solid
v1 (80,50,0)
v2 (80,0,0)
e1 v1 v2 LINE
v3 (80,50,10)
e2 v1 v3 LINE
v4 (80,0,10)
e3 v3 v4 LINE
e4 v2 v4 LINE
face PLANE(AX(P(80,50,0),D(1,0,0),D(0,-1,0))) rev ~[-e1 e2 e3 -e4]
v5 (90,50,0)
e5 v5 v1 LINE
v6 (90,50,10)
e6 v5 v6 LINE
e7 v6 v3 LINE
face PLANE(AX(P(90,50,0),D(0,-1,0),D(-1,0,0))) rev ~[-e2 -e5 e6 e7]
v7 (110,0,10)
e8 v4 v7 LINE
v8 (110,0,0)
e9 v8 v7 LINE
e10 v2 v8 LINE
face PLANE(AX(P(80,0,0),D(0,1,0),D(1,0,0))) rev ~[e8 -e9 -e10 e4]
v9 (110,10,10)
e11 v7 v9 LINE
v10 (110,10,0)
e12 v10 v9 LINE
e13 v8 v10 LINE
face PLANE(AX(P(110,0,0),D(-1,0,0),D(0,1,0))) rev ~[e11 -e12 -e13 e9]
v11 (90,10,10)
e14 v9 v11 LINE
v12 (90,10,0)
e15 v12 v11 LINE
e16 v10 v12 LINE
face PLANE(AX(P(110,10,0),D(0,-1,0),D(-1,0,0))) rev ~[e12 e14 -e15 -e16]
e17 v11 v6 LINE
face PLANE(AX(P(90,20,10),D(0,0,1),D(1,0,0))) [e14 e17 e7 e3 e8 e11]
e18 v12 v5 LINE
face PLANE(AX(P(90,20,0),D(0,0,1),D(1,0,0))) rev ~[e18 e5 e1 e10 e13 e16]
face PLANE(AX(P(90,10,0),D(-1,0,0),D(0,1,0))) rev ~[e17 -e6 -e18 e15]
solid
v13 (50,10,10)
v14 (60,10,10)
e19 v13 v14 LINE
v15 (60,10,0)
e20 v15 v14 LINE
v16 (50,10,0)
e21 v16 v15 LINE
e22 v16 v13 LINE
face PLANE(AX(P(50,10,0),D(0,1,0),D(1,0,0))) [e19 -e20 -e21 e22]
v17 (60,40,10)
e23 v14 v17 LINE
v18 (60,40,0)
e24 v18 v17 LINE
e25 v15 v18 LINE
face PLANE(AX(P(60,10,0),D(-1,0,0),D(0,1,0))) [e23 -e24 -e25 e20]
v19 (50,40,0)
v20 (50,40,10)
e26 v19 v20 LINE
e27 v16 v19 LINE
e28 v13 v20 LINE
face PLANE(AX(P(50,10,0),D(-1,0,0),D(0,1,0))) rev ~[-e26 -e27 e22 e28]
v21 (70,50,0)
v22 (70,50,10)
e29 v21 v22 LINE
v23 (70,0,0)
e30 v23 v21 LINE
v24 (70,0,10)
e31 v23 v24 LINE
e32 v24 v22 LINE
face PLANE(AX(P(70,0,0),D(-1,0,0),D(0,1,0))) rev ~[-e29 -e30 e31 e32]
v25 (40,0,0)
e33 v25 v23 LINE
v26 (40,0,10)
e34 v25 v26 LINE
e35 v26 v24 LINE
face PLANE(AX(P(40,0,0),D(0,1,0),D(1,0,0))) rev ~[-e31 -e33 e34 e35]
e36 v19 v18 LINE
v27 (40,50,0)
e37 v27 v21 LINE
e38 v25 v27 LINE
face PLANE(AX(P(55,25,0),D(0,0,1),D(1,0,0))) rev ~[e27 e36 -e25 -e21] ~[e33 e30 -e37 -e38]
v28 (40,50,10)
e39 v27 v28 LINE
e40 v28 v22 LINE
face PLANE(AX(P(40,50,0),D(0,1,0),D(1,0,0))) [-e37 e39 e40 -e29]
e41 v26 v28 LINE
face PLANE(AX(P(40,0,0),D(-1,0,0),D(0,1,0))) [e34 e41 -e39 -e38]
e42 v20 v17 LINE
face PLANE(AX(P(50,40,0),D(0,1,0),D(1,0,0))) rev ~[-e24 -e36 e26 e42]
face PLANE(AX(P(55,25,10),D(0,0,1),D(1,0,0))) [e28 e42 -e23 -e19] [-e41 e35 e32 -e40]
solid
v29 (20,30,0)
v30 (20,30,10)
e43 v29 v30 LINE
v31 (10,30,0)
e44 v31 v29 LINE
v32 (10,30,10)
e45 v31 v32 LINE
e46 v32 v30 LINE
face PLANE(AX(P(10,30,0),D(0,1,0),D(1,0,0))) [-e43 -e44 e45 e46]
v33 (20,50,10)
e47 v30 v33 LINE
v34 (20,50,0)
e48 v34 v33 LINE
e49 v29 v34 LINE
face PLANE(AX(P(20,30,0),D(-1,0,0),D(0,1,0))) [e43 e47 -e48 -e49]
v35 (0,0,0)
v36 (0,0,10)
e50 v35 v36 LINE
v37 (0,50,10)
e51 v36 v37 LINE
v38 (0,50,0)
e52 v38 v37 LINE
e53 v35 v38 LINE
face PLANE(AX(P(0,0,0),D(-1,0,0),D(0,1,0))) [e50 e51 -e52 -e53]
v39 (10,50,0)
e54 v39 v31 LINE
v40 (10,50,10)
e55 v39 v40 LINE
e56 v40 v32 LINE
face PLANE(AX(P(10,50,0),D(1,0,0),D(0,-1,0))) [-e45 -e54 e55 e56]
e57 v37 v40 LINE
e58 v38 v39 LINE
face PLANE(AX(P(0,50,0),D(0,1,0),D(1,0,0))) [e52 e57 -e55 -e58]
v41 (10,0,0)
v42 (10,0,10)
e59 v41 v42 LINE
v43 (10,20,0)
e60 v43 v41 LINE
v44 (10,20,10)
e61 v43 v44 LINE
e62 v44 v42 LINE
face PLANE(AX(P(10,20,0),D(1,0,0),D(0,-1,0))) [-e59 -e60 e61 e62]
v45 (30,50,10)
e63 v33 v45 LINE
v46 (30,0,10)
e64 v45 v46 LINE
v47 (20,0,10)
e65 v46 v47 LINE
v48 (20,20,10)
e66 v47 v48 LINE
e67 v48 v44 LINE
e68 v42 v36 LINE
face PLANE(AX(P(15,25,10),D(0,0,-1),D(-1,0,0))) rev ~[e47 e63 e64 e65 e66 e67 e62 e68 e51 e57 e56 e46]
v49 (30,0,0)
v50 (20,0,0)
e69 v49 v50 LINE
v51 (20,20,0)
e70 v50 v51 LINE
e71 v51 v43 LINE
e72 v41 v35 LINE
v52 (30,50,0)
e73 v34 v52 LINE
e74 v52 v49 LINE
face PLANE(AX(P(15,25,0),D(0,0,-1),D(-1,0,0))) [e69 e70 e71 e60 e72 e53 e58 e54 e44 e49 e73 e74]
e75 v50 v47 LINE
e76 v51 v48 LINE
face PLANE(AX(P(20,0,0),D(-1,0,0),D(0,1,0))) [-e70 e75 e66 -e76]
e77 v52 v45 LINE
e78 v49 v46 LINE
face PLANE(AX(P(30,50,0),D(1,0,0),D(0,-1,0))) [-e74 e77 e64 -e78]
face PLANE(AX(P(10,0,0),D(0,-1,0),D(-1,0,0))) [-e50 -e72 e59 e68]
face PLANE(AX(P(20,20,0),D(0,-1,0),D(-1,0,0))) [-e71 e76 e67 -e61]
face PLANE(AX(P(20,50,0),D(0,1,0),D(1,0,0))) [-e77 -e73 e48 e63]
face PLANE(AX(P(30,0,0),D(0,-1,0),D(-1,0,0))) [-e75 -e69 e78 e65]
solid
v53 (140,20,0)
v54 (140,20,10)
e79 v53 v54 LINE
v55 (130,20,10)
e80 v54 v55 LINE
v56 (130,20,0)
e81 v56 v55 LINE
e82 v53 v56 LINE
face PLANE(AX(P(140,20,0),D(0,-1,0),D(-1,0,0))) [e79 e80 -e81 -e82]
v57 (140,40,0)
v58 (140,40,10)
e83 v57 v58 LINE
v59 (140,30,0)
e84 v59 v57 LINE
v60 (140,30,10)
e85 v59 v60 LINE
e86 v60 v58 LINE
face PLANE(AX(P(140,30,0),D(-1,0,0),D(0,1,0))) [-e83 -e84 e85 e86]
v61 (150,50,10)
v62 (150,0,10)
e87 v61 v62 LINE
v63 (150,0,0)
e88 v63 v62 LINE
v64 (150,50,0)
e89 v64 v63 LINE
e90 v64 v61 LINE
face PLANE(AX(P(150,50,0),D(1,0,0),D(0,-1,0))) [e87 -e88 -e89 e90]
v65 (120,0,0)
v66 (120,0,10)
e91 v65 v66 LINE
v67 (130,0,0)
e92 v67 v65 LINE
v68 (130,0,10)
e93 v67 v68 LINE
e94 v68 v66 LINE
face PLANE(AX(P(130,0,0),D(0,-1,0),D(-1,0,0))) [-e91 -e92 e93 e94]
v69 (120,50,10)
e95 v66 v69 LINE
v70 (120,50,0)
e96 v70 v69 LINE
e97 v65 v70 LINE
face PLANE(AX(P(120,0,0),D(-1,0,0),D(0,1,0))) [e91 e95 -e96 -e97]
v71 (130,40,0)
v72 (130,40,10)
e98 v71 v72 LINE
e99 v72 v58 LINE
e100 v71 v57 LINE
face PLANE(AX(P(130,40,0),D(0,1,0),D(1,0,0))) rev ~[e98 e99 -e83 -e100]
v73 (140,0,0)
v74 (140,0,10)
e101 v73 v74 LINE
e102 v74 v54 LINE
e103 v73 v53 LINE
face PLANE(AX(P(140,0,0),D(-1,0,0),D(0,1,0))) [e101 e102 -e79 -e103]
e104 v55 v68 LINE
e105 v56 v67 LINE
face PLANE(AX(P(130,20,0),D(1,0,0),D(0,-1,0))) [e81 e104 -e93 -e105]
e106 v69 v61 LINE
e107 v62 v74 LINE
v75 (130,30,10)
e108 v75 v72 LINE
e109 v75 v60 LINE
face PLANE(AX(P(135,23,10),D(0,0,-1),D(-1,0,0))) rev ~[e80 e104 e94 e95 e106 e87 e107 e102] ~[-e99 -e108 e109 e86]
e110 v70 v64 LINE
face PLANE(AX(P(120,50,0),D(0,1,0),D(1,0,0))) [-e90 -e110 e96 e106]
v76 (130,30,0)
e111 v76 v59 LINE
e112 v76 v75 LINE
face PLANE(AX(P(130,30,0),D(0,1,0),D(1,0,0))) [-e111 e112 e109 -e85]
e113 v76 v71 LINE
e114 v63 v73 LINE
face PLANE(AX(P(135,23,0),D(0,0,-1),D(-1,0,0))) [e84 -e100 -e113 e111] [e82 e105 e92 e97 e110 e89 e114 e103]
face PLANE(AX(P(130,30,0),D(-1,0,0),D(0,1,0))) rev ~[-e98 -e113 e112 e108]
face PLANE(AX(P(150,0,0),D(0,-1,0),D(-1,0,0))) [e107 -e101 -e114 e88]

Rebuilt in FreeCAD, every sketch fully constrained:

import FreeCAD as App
import Part
import Sketcher
from FreeCAD import Vector


def add_polygon(sketch, points):
    """Adds a closed chain of lines whose ends are joined by coincident constraints."""
    first, n = sketch.GeometryCount, len(points)
    for a, b in zip(points, points[1:] + points[:1]):
        sketch.addGeometry(Part.LineSegment(App.Vector(*a, 0), App.Vector(*b, 0)), False)
    for i in range(n):
        sketch.addConstraint(Sketcher.Constraint("Coincident", first + i, 2, first + (i + 1) % n, 1))

doc = App.newDocument("Part")
params = doc.addObject("Spreadsheet::Sheet", "Params")
for row, (alias, value) in enumerate([
    ("sketch1_width", "10 mm"),
    ("sketch1_height", "50 mm"),
    ("sketch1_height2", "20 mm"),
    ("pad1_length", "10 mm"),
    ("sketch2_width", "30 mm"),
    ("sketch2_width2", "10 mm"),
    ("sketch2_height", "50 mm"),
    ("pad2_length", "10 mm"),
    ("sketch3_width", "30 mm"),
    ("sketch3_width2", "20 mm"),
    ("sketch3_height", "50 mm"),
    ("pad3_length", "10 mm"),
    ("sketch4_width", "10 mm"),
    ("sketch4_height", "50 mm"),
    ("sketch4_height2", "20 mm"),
    ("pad4_length", "10 mm"),
], start=1):
    params.set(f"A{row}", alias)
    params.set(f"B{row}", "=" + value)
    params.setAlias(f"B{row}", alias)

body = doc.addObject("PartDesign::Body", "Body")

sketch1 = body.newObject("Sketcher::SketchObject", "Sketch")
sketch1.AttachmentSupport = (doc.getObject("XY_Plane"), [""])
sketch1.MapMode = "FlatFace"
add_polygon(sketch1, [(0, 50), (0, 0), (10, 0), (10, 20), (20, 20), (20, 0), (30, 0), (30, 50), (20, 50), (20, 30), (10, 30), (10, 50)])
sketch1.addConstraint([
    Sketcher.Constraint("Vertical", 0),
    Sketcher.Constraint("Horizontal", 1),
    Sketcher.Constraint("Vertical", 2),
    Sketcher.Constraint("Horizontal", 3),
    Sketcher.Constraint("Vertical", 4),
    Sketcher.Constraint("Horizontal", 5),
    Sketcher.Constraint("Vertical", 6),
    Sketcher.Constraint("Horizontal", 7),
    Sketcher.Constraint("Vertical", 8),
    Sketcher.Constraint("Horizontal", 9),
    Sketcher.Constraint("Vertical", 10),
    Sketcher.Constraint("Horizontal", 11),
    Sketcher.Constraint("Coincident", 0, 2, -1, 1),
    Sketcher.Constraint("PointOnObject", 4, 2, -1),
    Sketcher.Constraint("Horizontal", 7, 2, 10, 2),
    Sketcher.Constraint("Vertical", 4, 2, 7, 2),
    Sketcher.Constraint("Vertical", 2, 2, 9, 2),
    Sketcher.Constraint("Equal", 1, 3),
    Sketcher.Constraint("Equal", 3, 5),
    Sketcher.Constraint("Equal", 4, 8),
    Sketcher.Constraint("DistanceX", 1, 1, 1, 2, 10.0),
    Sketcher.Constraint("DistanceY", 0, 2, 0, 1, 50.0),
    Sketcher.Constraint("DistanceY", 2, 1, 2, 2, 20.0),
])
sketch1.setExpression("Constraints[32]", "Params.sketch1_width")
sketch1.setExpression("Constraints[33]", "Params.sketch1_height")
sketch1.setExpression("Constraints[34]", "Params.sketch1_height2")
pad1 = body.newObject("PartDesign::Pad", "Pad")
pad1.Profile = sketch1
pad1.setExpression("Length", "Params.pad1_length")
body2 = doc.addObject("PartDesign::Body", "Body001")

sketch2 = body2.newObject("Sketcher::SketchObject", "Sketch001")
sketch2.AttachmentSupport = (doc.getObject("XY_Plane001"), [""])
sketch2.MapMode = "FlatFace"
add_polygon(sketch2, [(40, 50), (40, 0), (70, 0), (70, 50)])
add_polygon(sketch2, [(60, 10), (50, 10), (50, 40), (60, 40)])
sketch2.addConstraint([
    Sketcher.Constraint("Vertical", 0),
    Sketcher.Constraint("Horizontal", 1),
    Sketcher.Constraint("Vertical", 2),
    Sketcher.Constraint("Horizontal", 3),
    Sketcher.Constraint("Horizontal", 4),
    Sketcher.Constraint("Vertical", 5),
    Sketcher.Constraint("Horizontal", 6),
    Sketcher.Constraint("Vertical", 7),
    Sketcher.Constraint("PointOnObject", 0, 2, -1),
    Sketcher.Constraint("Equal", 3, 5),
    Sketcher.Constraint("DistanceX", 1, 1, 1, 2, 30.0),
    Sketcher.Constraint("DistanceX", 4, 2, 4, 1, 10.0),
    Sketcher.Constraint("DistanceY", 0, 2, 0, 1, 50.0),
    Sketcher.Constraint("DistanceX", -1, 1, 0, 2, 40.0),
    Sketcher.Constraint("DistanceX", -1, 1, 4, 2, 50.0),
    Sketcher.Constraint("DistanceY", -1, 1, 4, 2, 10.0),
])
sketch2.setExpression("Constraints[18]", "Params.sketch2_width")
sketch2.setExpression("Constraints[19]", "Params.sketch2_width2")
sketch2.setExpression("Constraints[20]", "Params.sketch2_height")
pad2 = body2.newObject("PartDesign::Pad", "Pad001")
pad2.Profile = sketch2
pad2.setExpression("Length", "Params.pad2_length")
body3 = doc.addObject("PartDesign::Body", "Body002")

sketch3 = body3.newObject("Sketcher::SketchObject", "Sketch002")
sketch3.AttachmentSupport = (doc.getObject("XY_Plane002"), [""])
sketch3.MapMode = "FlatFace"
add_polygon(sketch3, [(80, 50), (80, 0), (110, 0), (110, 10), (90, 10), (90, 50)])
sketch3.addConstraint([
    Sketcher.Constraint("Vertical", 0),
    Sketcher.Constraint("Horizontal", 1),
    Sketcher.Constraint("Vertical", 2),
    Sketcher.Constraint("Horizontal", 3),
    Sketcher.Constraint("Vertical", 4),
    Sketcher.Constraint("Horizontal", 5),
    Sketcher.Constraint("PointOnObject", 0, 2, -1),
    Sketcher.Constraint("Equal", 5, 2),
    Sketcher.Constraint("DistanceX", 1, 1, 1, 2, 30.0),
    Sketcher.Constraint("DistanceX", 3, 2, 3, 1, 20.0),
    Sketcher.Constraint("DistanceY", 0, 2, 0, 1, 50.0),
    Sketcher.Constraint("DistanceX", -1, 1, 0, 2, 80.0),
])
sketch3.setExpression("Constraints[14]", "Params.sketch3_width")
sketch3.setExpression("Constraints[15]", "Params.sketch3_width2")
sketch3.setExpression("Constraints[16]", "Params.sketch3_height")
pad3 = body3.newObject("PartDesign::Pad", "Pad002")
pad3.Profile = sketch3
pad3.setExpression("Length", "Params.pad3_length")
body4 = doc.addObject("PartDesign::Body", "Body003")

sketch4 = body4.newObject("Sketcher::SketchObject", "Sketch003")
sketch4.AttachmentSupport = (doc.getObject("XY_Plane003"), [""])
sketch4.MapMode = "FlatFace"
add_polygon(sketch4, [(120, 50), (120, 0), (130, 0), (130, 20), (140, 20), (140, 0), (150, 0), (150, 50)])
add_polygon(sketch4, [(130, 30), (130, 40), (140, 40), (140, 30)])
sketch4.addConstraint([
    Sketcher.Constraint("Vertical", 0),
    Sketcher.Constraint("Horizontal", 1),
    Sketcher.Constraint("Vertical", 2),
    Sketcher.Constraint("Horizontal", 3),
    Sketcher.Constraint("Vertical", 4),
    Sketcher.Constraint("Horizontal", 5),
    Sketcher.Constraint("Vertical", 6),
    Sketcher.Constraint("Horizontal", 7),
    Sketcher.Constraint("Vertical", 8),
    Sketcher.Constraint("Horizontal", 9),
    Sketcher.Constraint("Vertical", 10),
    Sketcher.Constraint("Horizontal", 11),
    Sketcher.Constraint("PointOnObject", 0, 2, -1),
    Sketcher.Constraint("PointOnObject", 4, 2, -1),
    Sketcher.Constraint("Vertical", 2, 2, 8, 2),
    Sketcher.Constraint("Vertical", 4, 2, 9, 2),
    Sketcher.Constraint("Equal", 1, 3),
    Sketcher.Constraint("Equal", 3, 5),
    Sketcher.Constraint("Equal", 11, 8),
    Sketcher.Constraint("DistanceX", 1, 1, 1, 2, 10.0),
    Sketcher.Constraint("DistanceY", 0, 2, 0, 1, 50.0),
    Sketcher.Constraint("DistanceY", 2, 1, 2, 2, 20.0),
    Sketcher.Constraint("DistanceX", -1, 1, 0, 2, 120.0),
    Sketcher.Constraint("DistanceY", -1, 1, 8, 2, 40.0),
])
sketch4.setExpression("Constraints[31]", "Params.sketch4_width")
sketch4.setExpression("Constraints[32]", "Params.sketch4_height")
sketch4.setExpression("Constraints[33]", "Params.sketch4_height2")
pad4 = body4.newObject("PartDesign::Pad", "Pad003")
pad4.Profile = sketch4
pad4.setExpression("Length", "Params.pad4_length")

doc.recompute()
